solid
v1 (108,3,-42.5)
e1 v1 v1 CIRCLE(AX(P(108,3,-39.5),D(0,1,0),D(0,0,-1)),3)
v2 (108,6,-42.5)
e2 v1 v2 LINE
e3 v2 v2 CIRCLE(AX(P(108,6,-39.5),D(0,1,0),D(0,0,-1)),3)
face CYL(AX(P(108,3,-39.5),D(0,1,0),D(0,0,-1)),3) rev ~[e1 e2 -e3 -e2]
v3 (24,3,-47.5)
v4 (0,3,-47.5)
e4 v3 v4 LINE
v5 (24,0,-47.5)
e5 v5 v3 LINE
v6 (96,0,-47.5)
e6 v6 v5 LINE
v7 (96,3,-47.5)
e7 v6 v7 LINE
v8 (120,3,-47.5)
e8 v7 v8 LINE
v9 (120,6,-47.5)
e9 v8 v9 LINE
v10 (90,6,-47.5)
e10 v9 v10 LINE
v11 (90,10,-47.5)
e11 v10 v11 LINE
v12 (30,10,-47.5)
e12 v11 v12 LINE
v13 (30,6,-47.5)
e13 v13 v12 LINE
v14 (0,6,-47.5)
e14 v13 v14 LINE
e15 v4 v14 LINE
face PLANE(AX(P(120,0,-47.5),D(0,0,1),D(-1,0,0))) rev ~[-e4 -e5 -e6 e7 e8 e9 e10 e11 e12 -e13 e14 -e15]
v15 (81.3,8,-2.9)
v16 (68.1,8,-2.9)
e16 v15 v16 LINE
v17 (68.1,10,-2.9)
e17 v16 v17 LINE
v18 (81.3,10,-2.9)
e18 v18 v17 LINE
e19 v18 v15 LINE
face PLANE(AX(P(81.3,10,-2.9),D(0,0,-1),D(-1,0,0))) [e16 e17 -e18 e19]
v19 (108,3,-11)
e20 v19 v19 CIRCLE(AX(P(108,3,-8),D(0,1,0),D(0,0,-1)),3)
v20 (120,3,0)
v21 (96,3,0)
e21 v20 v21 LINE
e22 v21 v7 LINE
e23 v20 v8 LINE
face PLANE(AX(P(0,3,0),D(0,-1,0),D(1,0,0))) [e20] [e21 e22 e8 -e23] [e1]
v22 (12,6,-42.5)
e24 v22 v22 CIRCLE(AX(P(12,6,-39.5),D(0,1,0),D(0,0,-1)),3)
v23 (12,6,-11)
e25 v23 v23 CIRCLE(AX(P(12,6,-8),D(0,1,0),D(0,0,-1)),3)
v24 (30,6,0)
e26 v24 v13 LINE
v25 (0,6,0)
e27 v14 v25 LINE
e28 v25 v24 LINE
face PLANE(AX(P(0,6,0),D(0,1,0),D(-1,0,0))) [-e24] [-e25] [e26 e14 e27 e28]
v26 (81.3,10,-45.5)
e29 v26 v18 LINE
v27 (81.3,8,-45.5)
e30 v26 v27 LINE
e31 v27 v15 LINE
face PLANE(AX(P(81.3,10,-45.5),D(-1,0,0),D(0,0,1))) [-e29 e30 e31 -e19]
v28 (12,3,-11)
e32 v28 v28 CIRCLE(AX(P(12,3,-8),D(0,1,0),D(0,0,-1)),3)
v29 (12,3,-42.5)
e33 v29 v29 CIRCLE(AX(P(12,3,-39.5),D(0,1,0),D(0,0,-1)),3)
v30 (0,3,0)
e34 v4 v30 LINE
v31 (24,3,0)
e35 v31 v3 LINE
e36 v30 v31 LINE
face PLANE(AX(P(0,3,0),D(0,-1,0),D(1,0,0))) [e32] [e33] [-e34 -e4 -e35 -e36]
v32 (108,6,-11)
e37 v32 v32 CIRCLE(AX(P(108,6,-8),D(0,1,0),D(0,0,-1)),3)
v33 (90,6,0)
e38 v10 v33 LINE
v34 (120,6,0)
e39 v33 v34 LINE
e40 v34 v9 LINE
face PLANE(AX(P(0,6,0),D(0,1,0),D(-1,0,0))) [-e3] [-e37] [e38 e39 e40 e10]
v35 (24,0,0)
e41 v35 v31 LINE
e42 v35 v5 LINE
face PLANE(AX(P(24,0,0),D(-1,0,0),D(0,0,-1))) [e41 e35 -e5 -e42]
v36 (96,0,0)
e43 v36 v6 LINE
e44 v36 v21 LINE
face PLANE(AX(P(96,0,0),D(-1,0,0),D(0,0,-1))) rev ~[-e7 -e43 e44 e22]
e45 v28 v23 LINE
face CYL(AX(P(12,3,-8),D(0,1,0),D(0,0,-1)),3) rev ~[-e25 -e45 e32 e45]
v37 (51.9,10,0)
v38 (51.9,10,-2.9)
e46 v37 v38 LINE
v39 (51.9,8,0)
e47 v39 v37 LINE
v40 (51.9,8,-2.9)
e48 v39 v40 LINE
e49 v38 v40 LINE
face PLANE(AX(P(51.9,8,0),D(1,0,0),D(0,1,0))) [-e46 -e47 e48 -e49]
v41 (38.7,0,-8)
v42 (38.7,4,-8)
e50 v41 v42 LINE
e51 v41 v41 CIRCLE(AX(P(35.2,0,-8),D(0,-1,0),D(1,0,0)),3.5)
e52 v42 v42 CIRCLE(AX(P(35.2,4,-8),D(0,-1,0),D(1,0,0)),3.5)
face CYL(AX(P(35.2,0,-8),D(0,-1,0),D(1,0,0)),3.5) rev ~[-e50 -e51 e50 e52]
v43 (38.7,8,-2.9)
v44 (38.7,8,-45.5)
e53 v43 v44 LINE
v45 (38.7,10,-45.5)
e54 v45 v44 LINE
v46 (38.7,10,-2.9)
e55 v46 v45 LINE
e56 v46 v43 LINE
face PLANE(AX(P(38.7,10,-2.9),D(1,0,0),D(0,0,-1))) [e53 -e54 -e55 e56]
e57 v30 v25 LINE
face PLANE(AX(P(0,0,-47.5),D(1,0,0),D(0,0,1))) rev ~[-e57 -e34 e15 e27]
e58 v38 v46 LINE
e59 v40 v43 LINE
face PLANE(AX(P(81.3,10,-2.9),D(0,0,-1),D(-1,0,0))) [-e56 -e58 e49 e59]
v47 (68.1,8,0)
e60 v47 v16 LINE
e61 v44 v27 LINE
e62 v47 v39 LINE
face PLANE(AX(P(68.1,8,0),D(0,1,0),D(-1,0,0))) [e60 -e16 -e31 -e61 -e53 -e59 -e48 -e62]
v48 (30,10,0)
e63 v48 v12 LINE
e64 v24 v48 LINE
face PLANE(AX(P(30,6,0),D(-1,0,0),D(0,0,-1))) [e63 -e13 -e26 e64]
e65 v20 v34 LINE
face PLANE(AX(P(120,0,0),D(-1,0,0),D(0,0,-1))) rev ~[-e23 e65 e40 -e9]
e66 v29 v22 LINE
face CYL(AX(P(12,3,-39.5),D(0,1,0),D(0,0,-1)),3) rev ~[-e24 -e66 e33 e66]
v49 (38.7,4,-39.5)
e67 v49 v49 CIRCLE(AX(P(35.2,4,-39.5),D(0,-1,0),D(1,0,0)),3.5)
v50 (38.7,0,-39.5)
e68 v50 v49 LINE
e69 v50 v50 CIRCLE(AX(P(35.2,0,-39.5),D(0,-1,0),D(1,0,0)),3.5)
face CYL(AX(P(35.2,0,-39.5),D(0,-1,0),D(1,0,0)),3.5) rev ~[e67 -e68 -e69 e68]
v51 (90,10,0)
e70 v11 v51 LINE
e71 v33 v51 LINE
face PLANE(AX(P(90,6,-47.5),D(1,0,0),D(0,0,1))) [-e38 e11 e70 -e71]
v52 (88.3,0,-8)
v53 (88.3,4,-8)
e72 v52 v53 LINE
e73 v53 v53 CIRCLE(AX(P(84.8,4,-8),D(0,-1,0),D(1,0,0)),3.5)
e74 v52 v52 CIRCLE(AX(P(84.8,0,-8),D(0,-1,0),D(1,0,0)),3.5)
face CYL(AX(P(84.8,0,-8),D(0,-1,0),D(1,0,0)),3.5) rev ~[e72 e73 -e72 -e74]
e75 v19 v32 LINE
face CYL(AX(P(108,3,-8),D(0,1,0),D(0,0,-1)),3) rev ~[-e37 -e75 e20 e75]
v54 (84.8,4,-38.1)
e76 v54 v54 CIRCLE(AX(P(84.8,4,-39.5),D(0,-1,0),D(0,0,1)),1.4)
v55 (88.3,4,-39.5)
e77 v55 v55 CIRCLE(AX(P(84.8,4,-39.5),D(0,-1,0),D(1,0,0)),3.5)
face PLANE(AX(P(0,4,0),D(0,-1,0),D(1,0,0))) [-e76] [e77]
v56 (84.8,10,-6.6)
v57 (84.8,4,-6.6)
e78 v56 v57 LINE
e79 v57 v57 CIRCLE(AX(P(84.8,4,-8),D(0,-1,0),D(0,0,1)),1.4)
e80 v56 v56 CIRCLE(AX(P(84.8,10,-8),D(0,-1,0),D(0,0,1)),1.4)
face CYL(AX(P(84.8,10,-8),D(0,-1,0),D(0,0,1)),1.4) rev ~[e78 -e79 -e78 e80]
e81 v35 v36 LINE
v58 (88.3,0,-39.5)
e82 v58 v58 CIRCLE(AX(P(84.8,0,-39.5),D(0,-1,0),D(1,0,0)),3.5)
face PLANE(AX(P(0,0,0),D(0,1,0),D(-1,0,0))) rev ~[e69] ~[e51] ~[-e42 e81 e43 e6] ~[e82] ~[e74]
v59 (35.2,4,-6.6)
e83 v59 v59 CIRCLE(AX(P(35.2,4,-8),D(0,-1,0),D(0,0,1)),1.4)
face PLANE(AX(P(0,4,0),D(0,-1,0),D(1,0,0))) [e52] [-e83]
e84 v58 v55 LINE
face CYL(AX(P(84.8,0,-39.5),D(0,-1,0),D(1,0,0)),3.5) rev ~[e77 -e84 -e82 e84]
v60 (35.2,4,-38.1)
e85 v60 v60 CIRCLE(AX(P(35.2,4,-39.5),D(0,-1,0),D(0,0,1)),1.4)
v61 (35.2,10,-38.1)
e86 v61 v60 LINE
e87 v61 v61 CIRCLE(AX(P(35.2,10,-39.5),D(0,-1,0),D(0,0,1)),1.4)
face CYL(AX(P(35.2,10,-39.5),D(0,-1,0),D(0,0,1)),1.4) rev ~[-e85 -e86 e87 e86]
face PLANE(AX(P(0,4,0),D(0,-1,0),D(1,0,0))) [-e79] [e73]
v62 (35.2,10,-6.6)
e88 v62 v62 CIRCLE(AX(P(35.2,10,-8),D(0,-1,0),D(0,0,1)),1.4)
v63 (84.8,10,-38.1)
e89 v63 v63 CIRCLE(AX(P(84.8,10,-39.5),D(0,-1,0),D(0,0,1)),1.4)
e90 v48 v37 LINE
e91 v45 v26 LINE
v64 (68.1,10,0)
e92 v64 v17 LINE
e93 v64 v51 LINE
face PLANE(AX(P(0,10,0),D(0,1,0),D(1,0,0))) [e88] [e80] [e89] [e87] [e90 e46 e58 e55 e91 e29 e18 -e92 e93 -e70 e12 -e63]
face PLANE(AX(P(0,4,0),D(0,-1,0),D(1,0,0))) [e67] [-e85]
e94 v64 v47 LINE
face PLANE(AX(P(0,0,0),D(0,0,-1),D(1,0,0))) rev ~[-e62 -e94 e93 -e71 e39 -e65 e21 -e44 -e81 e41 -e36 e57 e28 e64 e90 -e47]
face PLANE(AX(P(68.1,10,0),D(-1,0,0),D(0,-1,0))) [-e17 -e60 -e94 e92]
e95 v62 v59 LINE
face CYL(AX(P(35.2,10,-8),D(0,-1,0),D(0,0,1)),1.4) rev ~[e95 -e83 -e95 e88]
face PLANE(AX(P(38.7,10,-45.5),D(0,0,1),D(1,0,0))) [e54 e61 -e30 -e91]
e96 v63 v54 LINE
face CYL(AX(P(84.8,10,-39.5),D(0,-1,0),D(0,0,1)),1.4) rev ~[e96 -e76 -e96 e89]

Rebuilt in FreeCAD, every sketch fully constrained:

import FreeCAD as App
import Part
import Sketcher


def add_polygon(sketch, points):
    """Adds a closed chain of lines whose ends are joined by coincident constraints."""
    first, n = sketch.GeometryCount, len(points)
    for a, b in zip(points, points[1:] + points[:1]):
        sketch.addGeometry(Part.LineSegment(App.Vector(*a, 0), App.Vector(*b, 0)), False)
    for i in range(n):
        sketch.addConstraint(Sketcher.Constraint("Coincident", first + i, 2, first + (i + 1) % n, 1))

doc = App.newDocument("Part")
body = doc.addObject("PartDesign::Body", "Body")

# Sketch on XZ plane
sketch1 = body.newObject("Sketcher::SketchObject", "Sketch")
sketch1.AttachmentSupport = (doc.getObject("XZ_Plane"), [""])
sketch1.MapMode = "FlatFace"
add_polygon(sketch1, [(0, -47.5), (0, 0), (120, 0), (120, -47.5)])  # lines 0-3
sketch1.addConstraint([
    Sketcher.Constraint("Vertical", 0),
    Sketcher.Constraint("Horizontal", 1),
    Sketcher.Constraint("Vertical", 2),
    Sketcher.Constraint("Horizontal", 3),
    Sketcher.Constraint("Coincident", 0, 2, -1, 1),
    Sketcher.Constraint("DistanceX", 1, 1, 1, 2, 120.0),
    Sketcher.Constraint("DistanceY", 0, 1, 0, 2, 47.5),
])
pad1 = body.newObject("PartDesign::Pad", "Pad")
pad1.Profile = sketch1
pad1.Length = 6
pad1.Reversed = True

# Sketch on XZ plane
sketch2 = body.newObject("Sketcher::SketchObject", "Sketch001")
sketch2.AttachmentSupport = (doc.getObject("XZ_Plane"), [""])
sketch2.MapMode = "FlatFace"
sketch2.AttachmentOffset = App.Placement(App.Vector(0, 0, -6), App.Rotation())
add_polygon(sketch2, [(90, 0), (90, -47.5), (30, -47.5), (30, 0)])  # lines 0-3
sketch2.addConstraint([
    Sketcher.Constraint("Vertical", 0),
    Sketcher.Constraint("Horizontal", 1),
    Sketcher.Constraint("Vertical", 2),
    Sketcher.Constraint("Horizontal", 3),
    Sketcher.Constraint("PointOnObject", 2, 2, -1),
    Sketcher.Constraint("DistanceX", 1, 2, 1, 1, 60.0),
    Sketcher.Constraint("DistanceY", 0, 2, 0, 1, 47.5),
    Sketcher.Constraint("DistanceX", -1, 1, 0, 2, 90.0),
])
pad2 = body.newObject("PartDesign::Pad", "Pad001")
pad2.Profile = sketch2
pad2.Length = 4
pad2.Reversed = True

# Sketch on XZ plane
sketch3 = body.newObject("Sketcher::SketchObject", "Sketch002")
sketch3.AttachmentSupport = (doc.getObject("XZ_Plane"), [""])
sketch3.MapMode = "FlatFace"
sketch3.AttachmentOffset = App.Placement(App.Vector(0, 0, -10), App.Rotation())
add_polygon(sketch3, [(81.3, -45.5), (38.7, -45.5), (38.7, -2.9), (81.3, -2.9)])  # lines 0-3
sketch3.addConstraint([
    Sketcher.Constraint("Horizontal", 0),
    Sketcher.Constraint("Vertical", 1),
    Sketcher.Constraint("Horizontal", 2),
    Sketcher.Constraint("Vertical", 3),
    Sketcher.Constraint("Equal", 2, 1),
    Sketcher.Constraint("DistanceX", 0, 2, 0, 1, 42.6),
    Sketcher.Constraint("DistanceX", -1, 1, 0, 2, 38.7),
    Sketcher.Constraint("DistanceY", 0, 2, -1, 1, 45.5),
])
pocket1 = body.newObject("PartDesign::Pocket", "Pocket")
pocket1.Profile = sketch3
pocket1.Length = 2
pocket1.Reversed = True

# Sketch on XY plane
sketch4 = body.newObject("Sketcher::SketchObject", "Sketch003")
sketch4.AttachmentSupport = (doc.getObject("XY_Plane"), [""])
sketch4.MapMode = "FlatFace"
add_polygon(sketch4, [(68.1, 8), (68.1, 10), (51.9, 10), (51.9, 8)])  # lines 0-3
sketch4.addConstraint([
    Sketcher.Constraint("Vertical", 0),
    Sketcher.Constraint("Horizontal", 1),
    Sketcher.Constraint("Vertical", 2),
    Sketcher.Constraint("Horizontal", 3),
    Sketcher.Constraint("DistanceX", 1, 2, 1, 1, 16.2),
    Sketcher.Constraint("DistanceY", 0, 1, 0, 2, 2.0),
    Sketcher.Constraint("DistanceY", -1, 1, 0, 2, 10.0),
    Sketcher.Constraint("DistanceX", -1, 1, 0, 2, 68.1),
])
pocket2 = body.newObject("PartDesign::Pocket", "Pocket001")
pocket2.Profile = sketch4
pocket2.Length = 3

# Sketch on XZ plane
sketch5 = body.newObject("Sketcher::SketchObject", "Sketch004")
sketch5.AttachmentSupport = (doc.getObject("XZ_Plane"), [""])
sketch5.MapMode = "FlatFace"
sketch5.AttachmentOffset = App.Placement(App.Vector(0, 0, -10), App.Rotation())
sketch5.addGeometry([
    Part.Circle(App.Vector(35.2, -39.5, 0), App.Vector(0, 0, 1), 1.4),
    Part.Circle(App.Vector(35.2, -8, 0), App.Vector(0, 0, 1), 1.4),
    Part.Circle(App.Vector(84.8, -8, 0), App.Vector(0, 0, 1), 1.4),
    Part.Circle(App.Vector(84.8, -39.5, 0), App.Vector(0, 0, 1), 1.4),
], False)
sketch5.addConstraint([
    Sketcher.Constraint("Equal", 0, 1),
    Sketcher.Constraint("Equal", 1, 2),
    Sketcher.Constraint("Equal", 2, 3),
    Sketcher.Constraint("Horizontal", 1, 3, 2, 3),
    Sketcher.Constraint("Horizontal", 0, 3, 3, 3),
    Sketcher.Constraint("Vertical", 0, 3, 1, 3),
    Sketcher.Constraint("Vertical", 2, 3, 3, 3),
    Sketcher.Constraint("Diameter", 0, 2.8),
    Sketcher.Constraint("DistanceY", 1, 3, -1, 1, 8.0),
    Sketcher.Constraint("DistanceX", -1, 1, 0, 3, 35.2),
    Sketcher.Constraint("DistanceY", 0, 3, -1, 1, 39.5),
    Sketcher.Constraint("DistanceX", -1, 1, 2, 3, 84.8),
])
doc.recompute()
hole = body.newObject("PartDesign::Hole", "Hole")
hole.Profile = sketch5
hole.ThreadType = "None"
hole.Diameter = 2.8
hole.DepthType = "ThroughAll"
hole.Reversed = True

# Sketch on XZ plane
sketch6 = body.newObject("Sketcher::SketchObject", "Sketch005")
sketch6.AttachmentSupport = (doc.getObject("XZ_Plane"), [""])
sketch6.MapMode = "FlatFace"
sketch6.addGeometry([
    Part.Circle(App.Vector(35.2, -8, 0), App.Vector(0, 0, 1), 3.5),  # 0
    Part.Circle(App.Vector(84.8, -8, 0), App.Vector(0, 0, 1), 3.5),  # 1
    Part.Circle(App.Vector(84.8, -8, 0), App.Vector(0, 0, 1), 1.4),  # 2
    Part.Circle(App.Vector(84.8, -39.5, 0), App.Vector(0, 0, 1), 3.5),  # 3
    Part.Circle(App.Vector(35.2, -39.5, 0), App.Vector(0, 0, 1), 3.5),  # 4
], False)
sketch6.addConstraint([
    Sketcher.Constraint("Coincident", 2, 3, 1, 3),
    Sketcher.Constraint("Equal", 0, 1),
    Sketcher.Constraint("Equal", 1, 3),
    Sketcher.Constraint("Equal", 3, 4),
    Sketcher.Constraint("Horizontal", 0, 3, 1, 3),
    Sketcher.Constraint("Horizontal", 3, 3, 4, 3),
    Sketcher.Constraint("Vertical", 2, 3, 3, 3),
    Sketcher.Constraint("Vertical", 0, 3, 4, 3),
    Sketcher.Constraint("Diameter", 0, 7.0),
    Sketcher.Constraint("Diameter", 2, 2.8),
    Sketcher.Constraint("DistanceY", 0, 3, -1, 1, 8.0),
    Sketcher.Constraint("DistanceX", -1, 1, 0, 3, 35.2),
    Sketcher.Constraint("DistanceX", -1, 1, 1, 3, 84.8),
    Sketcher.Constraint("DistanceY", 3, 3, -1, 1, 39.5),
])
pocket3 = body.newObject("PartDesign::Pocket", "Pocket002")
pocket3.Profile = sketch6
pocket3.Length = 4

# Sketch on XZ plane
sketch7 = body.newObject("Sketcher::SketchObject", "Sketch006")
sketch7.AttachmentSupport = (doc.getObject("XZ_Plane"), [""])
sketch7.MapMode = "FlatFace"
add_polygon(sketch7, [(24, 0), (0, 0), (0, -47.5), (24, -47.5)])  # lines 0-3
add_polygon(sketch7, [(120, -47.5), (120, 0), (96, 0), (96, -47.5)])  # lines 4-7
sketch7.addConstraint([
    Sketcher.Constraint("Horizontal", 0),
    Sketcher.Constraint("Vertical", 1),
    Sketcher.Constraint("Horizontal", 2),
    Sketcher.Constraint("Vertical", 3),
    Sketcher.Constraint("Vertical", 4),
    Sketcher.Constraint("Horizontal", 5),
    Sketcher.Constraint("Vertical", 6),
    Sketcher.Constraint("Horizontal", 7),
    Sketcher.Constraint("Coincident", 0, 2, -1, 1),
    Sketcher.Constraint("PointOnObject", 4, 2, -1),
    Sketcher.Constraint("Horizontal", 2, 2, 6, 2),
    Sketcher.Constraint("Equal", 2, 5),
    Sketcher.Constraint("DistanceX", 0, 2, 0, 1, 24.0),
    Sketcher.Constraint("DistanceY", 1, 2, 1, 1, 47.5),
    Sketcher.Constraint("DistanceX", -1, 1, 4, 2, 120.0),
])
pocket4 = body.newObject("PartDesign::Pocket", "Pocket003")
pocket4.Profile = sketch7
pocket4.Length = 3

# Sketch on XZ plane
sketch8 = body.newObject("Sketcher::SketchObject", "Sketch007")
sketch8.AttachmentSupport = (doc.getObject("XZ_Plane"), [""])
sketch8.MapMode = "FlatFace"
sketch8.AttachmentOffset = App.Placement(App.Vector(0, 0, -3), App.Rotation())
sketch8.addGeometry([
    Part.Circle(App.Vector(12, -8, 0), App.Vector(0, 0, 1), 3),
    Part.Circle(App.Vector(12, -39.5, 0), App.Vector(0, 0, 1), 3),
    Part.Circle(App.Vector(108, -8, 0), App.Vector(0, 0, 1), 3),
    Part.Circle(App.Vector(108, -39.5, 0), App.Vector(0, 0, 1), 3),
], False)
sketch8.addConstraint([
    Sketcher.Constraint("Equal", 0, 1),
    Sketcher.Constraint("Equal", 1, 2),
    Sketcher.Constraint("Equal", 2, 3),
    Sketcher.Constraint("Horizontal", 0, 3, 2, 3),
    Sketcher.Constraint("Horizontal", 1, 3, 3, 3),
    Sketcher.Constraint("Vertical", 0, 3, 1, 3),
    Sketcher.Constraint("Vertical", 2, 3, 3, 3),
    Sketcher.Constraint("Diameter", 0, 6.0),
    Sketcher.Constraint("DistanceX", -1, 1, 0, 3, 12.0),
    Sketcher.Constraint("DistanceY", 0, 3, -1, 1, 8.0),
    Sketcher.Constraint("DistanceX", -1, 1, 2, 3, 108.0),
    Sketcher.Constraint("DistanceY", 1, 3, -1, 1, 39.5),
])
doc.recompute()
hole2 = body.newObject("PartDesign::Hole", "Hole001")
hole2.Profile = sketch8
hole2.ThreadType = "None"
hole2.Diameter = 6
hole2.DepthType = "ThroughAll"

doc.recompute()
